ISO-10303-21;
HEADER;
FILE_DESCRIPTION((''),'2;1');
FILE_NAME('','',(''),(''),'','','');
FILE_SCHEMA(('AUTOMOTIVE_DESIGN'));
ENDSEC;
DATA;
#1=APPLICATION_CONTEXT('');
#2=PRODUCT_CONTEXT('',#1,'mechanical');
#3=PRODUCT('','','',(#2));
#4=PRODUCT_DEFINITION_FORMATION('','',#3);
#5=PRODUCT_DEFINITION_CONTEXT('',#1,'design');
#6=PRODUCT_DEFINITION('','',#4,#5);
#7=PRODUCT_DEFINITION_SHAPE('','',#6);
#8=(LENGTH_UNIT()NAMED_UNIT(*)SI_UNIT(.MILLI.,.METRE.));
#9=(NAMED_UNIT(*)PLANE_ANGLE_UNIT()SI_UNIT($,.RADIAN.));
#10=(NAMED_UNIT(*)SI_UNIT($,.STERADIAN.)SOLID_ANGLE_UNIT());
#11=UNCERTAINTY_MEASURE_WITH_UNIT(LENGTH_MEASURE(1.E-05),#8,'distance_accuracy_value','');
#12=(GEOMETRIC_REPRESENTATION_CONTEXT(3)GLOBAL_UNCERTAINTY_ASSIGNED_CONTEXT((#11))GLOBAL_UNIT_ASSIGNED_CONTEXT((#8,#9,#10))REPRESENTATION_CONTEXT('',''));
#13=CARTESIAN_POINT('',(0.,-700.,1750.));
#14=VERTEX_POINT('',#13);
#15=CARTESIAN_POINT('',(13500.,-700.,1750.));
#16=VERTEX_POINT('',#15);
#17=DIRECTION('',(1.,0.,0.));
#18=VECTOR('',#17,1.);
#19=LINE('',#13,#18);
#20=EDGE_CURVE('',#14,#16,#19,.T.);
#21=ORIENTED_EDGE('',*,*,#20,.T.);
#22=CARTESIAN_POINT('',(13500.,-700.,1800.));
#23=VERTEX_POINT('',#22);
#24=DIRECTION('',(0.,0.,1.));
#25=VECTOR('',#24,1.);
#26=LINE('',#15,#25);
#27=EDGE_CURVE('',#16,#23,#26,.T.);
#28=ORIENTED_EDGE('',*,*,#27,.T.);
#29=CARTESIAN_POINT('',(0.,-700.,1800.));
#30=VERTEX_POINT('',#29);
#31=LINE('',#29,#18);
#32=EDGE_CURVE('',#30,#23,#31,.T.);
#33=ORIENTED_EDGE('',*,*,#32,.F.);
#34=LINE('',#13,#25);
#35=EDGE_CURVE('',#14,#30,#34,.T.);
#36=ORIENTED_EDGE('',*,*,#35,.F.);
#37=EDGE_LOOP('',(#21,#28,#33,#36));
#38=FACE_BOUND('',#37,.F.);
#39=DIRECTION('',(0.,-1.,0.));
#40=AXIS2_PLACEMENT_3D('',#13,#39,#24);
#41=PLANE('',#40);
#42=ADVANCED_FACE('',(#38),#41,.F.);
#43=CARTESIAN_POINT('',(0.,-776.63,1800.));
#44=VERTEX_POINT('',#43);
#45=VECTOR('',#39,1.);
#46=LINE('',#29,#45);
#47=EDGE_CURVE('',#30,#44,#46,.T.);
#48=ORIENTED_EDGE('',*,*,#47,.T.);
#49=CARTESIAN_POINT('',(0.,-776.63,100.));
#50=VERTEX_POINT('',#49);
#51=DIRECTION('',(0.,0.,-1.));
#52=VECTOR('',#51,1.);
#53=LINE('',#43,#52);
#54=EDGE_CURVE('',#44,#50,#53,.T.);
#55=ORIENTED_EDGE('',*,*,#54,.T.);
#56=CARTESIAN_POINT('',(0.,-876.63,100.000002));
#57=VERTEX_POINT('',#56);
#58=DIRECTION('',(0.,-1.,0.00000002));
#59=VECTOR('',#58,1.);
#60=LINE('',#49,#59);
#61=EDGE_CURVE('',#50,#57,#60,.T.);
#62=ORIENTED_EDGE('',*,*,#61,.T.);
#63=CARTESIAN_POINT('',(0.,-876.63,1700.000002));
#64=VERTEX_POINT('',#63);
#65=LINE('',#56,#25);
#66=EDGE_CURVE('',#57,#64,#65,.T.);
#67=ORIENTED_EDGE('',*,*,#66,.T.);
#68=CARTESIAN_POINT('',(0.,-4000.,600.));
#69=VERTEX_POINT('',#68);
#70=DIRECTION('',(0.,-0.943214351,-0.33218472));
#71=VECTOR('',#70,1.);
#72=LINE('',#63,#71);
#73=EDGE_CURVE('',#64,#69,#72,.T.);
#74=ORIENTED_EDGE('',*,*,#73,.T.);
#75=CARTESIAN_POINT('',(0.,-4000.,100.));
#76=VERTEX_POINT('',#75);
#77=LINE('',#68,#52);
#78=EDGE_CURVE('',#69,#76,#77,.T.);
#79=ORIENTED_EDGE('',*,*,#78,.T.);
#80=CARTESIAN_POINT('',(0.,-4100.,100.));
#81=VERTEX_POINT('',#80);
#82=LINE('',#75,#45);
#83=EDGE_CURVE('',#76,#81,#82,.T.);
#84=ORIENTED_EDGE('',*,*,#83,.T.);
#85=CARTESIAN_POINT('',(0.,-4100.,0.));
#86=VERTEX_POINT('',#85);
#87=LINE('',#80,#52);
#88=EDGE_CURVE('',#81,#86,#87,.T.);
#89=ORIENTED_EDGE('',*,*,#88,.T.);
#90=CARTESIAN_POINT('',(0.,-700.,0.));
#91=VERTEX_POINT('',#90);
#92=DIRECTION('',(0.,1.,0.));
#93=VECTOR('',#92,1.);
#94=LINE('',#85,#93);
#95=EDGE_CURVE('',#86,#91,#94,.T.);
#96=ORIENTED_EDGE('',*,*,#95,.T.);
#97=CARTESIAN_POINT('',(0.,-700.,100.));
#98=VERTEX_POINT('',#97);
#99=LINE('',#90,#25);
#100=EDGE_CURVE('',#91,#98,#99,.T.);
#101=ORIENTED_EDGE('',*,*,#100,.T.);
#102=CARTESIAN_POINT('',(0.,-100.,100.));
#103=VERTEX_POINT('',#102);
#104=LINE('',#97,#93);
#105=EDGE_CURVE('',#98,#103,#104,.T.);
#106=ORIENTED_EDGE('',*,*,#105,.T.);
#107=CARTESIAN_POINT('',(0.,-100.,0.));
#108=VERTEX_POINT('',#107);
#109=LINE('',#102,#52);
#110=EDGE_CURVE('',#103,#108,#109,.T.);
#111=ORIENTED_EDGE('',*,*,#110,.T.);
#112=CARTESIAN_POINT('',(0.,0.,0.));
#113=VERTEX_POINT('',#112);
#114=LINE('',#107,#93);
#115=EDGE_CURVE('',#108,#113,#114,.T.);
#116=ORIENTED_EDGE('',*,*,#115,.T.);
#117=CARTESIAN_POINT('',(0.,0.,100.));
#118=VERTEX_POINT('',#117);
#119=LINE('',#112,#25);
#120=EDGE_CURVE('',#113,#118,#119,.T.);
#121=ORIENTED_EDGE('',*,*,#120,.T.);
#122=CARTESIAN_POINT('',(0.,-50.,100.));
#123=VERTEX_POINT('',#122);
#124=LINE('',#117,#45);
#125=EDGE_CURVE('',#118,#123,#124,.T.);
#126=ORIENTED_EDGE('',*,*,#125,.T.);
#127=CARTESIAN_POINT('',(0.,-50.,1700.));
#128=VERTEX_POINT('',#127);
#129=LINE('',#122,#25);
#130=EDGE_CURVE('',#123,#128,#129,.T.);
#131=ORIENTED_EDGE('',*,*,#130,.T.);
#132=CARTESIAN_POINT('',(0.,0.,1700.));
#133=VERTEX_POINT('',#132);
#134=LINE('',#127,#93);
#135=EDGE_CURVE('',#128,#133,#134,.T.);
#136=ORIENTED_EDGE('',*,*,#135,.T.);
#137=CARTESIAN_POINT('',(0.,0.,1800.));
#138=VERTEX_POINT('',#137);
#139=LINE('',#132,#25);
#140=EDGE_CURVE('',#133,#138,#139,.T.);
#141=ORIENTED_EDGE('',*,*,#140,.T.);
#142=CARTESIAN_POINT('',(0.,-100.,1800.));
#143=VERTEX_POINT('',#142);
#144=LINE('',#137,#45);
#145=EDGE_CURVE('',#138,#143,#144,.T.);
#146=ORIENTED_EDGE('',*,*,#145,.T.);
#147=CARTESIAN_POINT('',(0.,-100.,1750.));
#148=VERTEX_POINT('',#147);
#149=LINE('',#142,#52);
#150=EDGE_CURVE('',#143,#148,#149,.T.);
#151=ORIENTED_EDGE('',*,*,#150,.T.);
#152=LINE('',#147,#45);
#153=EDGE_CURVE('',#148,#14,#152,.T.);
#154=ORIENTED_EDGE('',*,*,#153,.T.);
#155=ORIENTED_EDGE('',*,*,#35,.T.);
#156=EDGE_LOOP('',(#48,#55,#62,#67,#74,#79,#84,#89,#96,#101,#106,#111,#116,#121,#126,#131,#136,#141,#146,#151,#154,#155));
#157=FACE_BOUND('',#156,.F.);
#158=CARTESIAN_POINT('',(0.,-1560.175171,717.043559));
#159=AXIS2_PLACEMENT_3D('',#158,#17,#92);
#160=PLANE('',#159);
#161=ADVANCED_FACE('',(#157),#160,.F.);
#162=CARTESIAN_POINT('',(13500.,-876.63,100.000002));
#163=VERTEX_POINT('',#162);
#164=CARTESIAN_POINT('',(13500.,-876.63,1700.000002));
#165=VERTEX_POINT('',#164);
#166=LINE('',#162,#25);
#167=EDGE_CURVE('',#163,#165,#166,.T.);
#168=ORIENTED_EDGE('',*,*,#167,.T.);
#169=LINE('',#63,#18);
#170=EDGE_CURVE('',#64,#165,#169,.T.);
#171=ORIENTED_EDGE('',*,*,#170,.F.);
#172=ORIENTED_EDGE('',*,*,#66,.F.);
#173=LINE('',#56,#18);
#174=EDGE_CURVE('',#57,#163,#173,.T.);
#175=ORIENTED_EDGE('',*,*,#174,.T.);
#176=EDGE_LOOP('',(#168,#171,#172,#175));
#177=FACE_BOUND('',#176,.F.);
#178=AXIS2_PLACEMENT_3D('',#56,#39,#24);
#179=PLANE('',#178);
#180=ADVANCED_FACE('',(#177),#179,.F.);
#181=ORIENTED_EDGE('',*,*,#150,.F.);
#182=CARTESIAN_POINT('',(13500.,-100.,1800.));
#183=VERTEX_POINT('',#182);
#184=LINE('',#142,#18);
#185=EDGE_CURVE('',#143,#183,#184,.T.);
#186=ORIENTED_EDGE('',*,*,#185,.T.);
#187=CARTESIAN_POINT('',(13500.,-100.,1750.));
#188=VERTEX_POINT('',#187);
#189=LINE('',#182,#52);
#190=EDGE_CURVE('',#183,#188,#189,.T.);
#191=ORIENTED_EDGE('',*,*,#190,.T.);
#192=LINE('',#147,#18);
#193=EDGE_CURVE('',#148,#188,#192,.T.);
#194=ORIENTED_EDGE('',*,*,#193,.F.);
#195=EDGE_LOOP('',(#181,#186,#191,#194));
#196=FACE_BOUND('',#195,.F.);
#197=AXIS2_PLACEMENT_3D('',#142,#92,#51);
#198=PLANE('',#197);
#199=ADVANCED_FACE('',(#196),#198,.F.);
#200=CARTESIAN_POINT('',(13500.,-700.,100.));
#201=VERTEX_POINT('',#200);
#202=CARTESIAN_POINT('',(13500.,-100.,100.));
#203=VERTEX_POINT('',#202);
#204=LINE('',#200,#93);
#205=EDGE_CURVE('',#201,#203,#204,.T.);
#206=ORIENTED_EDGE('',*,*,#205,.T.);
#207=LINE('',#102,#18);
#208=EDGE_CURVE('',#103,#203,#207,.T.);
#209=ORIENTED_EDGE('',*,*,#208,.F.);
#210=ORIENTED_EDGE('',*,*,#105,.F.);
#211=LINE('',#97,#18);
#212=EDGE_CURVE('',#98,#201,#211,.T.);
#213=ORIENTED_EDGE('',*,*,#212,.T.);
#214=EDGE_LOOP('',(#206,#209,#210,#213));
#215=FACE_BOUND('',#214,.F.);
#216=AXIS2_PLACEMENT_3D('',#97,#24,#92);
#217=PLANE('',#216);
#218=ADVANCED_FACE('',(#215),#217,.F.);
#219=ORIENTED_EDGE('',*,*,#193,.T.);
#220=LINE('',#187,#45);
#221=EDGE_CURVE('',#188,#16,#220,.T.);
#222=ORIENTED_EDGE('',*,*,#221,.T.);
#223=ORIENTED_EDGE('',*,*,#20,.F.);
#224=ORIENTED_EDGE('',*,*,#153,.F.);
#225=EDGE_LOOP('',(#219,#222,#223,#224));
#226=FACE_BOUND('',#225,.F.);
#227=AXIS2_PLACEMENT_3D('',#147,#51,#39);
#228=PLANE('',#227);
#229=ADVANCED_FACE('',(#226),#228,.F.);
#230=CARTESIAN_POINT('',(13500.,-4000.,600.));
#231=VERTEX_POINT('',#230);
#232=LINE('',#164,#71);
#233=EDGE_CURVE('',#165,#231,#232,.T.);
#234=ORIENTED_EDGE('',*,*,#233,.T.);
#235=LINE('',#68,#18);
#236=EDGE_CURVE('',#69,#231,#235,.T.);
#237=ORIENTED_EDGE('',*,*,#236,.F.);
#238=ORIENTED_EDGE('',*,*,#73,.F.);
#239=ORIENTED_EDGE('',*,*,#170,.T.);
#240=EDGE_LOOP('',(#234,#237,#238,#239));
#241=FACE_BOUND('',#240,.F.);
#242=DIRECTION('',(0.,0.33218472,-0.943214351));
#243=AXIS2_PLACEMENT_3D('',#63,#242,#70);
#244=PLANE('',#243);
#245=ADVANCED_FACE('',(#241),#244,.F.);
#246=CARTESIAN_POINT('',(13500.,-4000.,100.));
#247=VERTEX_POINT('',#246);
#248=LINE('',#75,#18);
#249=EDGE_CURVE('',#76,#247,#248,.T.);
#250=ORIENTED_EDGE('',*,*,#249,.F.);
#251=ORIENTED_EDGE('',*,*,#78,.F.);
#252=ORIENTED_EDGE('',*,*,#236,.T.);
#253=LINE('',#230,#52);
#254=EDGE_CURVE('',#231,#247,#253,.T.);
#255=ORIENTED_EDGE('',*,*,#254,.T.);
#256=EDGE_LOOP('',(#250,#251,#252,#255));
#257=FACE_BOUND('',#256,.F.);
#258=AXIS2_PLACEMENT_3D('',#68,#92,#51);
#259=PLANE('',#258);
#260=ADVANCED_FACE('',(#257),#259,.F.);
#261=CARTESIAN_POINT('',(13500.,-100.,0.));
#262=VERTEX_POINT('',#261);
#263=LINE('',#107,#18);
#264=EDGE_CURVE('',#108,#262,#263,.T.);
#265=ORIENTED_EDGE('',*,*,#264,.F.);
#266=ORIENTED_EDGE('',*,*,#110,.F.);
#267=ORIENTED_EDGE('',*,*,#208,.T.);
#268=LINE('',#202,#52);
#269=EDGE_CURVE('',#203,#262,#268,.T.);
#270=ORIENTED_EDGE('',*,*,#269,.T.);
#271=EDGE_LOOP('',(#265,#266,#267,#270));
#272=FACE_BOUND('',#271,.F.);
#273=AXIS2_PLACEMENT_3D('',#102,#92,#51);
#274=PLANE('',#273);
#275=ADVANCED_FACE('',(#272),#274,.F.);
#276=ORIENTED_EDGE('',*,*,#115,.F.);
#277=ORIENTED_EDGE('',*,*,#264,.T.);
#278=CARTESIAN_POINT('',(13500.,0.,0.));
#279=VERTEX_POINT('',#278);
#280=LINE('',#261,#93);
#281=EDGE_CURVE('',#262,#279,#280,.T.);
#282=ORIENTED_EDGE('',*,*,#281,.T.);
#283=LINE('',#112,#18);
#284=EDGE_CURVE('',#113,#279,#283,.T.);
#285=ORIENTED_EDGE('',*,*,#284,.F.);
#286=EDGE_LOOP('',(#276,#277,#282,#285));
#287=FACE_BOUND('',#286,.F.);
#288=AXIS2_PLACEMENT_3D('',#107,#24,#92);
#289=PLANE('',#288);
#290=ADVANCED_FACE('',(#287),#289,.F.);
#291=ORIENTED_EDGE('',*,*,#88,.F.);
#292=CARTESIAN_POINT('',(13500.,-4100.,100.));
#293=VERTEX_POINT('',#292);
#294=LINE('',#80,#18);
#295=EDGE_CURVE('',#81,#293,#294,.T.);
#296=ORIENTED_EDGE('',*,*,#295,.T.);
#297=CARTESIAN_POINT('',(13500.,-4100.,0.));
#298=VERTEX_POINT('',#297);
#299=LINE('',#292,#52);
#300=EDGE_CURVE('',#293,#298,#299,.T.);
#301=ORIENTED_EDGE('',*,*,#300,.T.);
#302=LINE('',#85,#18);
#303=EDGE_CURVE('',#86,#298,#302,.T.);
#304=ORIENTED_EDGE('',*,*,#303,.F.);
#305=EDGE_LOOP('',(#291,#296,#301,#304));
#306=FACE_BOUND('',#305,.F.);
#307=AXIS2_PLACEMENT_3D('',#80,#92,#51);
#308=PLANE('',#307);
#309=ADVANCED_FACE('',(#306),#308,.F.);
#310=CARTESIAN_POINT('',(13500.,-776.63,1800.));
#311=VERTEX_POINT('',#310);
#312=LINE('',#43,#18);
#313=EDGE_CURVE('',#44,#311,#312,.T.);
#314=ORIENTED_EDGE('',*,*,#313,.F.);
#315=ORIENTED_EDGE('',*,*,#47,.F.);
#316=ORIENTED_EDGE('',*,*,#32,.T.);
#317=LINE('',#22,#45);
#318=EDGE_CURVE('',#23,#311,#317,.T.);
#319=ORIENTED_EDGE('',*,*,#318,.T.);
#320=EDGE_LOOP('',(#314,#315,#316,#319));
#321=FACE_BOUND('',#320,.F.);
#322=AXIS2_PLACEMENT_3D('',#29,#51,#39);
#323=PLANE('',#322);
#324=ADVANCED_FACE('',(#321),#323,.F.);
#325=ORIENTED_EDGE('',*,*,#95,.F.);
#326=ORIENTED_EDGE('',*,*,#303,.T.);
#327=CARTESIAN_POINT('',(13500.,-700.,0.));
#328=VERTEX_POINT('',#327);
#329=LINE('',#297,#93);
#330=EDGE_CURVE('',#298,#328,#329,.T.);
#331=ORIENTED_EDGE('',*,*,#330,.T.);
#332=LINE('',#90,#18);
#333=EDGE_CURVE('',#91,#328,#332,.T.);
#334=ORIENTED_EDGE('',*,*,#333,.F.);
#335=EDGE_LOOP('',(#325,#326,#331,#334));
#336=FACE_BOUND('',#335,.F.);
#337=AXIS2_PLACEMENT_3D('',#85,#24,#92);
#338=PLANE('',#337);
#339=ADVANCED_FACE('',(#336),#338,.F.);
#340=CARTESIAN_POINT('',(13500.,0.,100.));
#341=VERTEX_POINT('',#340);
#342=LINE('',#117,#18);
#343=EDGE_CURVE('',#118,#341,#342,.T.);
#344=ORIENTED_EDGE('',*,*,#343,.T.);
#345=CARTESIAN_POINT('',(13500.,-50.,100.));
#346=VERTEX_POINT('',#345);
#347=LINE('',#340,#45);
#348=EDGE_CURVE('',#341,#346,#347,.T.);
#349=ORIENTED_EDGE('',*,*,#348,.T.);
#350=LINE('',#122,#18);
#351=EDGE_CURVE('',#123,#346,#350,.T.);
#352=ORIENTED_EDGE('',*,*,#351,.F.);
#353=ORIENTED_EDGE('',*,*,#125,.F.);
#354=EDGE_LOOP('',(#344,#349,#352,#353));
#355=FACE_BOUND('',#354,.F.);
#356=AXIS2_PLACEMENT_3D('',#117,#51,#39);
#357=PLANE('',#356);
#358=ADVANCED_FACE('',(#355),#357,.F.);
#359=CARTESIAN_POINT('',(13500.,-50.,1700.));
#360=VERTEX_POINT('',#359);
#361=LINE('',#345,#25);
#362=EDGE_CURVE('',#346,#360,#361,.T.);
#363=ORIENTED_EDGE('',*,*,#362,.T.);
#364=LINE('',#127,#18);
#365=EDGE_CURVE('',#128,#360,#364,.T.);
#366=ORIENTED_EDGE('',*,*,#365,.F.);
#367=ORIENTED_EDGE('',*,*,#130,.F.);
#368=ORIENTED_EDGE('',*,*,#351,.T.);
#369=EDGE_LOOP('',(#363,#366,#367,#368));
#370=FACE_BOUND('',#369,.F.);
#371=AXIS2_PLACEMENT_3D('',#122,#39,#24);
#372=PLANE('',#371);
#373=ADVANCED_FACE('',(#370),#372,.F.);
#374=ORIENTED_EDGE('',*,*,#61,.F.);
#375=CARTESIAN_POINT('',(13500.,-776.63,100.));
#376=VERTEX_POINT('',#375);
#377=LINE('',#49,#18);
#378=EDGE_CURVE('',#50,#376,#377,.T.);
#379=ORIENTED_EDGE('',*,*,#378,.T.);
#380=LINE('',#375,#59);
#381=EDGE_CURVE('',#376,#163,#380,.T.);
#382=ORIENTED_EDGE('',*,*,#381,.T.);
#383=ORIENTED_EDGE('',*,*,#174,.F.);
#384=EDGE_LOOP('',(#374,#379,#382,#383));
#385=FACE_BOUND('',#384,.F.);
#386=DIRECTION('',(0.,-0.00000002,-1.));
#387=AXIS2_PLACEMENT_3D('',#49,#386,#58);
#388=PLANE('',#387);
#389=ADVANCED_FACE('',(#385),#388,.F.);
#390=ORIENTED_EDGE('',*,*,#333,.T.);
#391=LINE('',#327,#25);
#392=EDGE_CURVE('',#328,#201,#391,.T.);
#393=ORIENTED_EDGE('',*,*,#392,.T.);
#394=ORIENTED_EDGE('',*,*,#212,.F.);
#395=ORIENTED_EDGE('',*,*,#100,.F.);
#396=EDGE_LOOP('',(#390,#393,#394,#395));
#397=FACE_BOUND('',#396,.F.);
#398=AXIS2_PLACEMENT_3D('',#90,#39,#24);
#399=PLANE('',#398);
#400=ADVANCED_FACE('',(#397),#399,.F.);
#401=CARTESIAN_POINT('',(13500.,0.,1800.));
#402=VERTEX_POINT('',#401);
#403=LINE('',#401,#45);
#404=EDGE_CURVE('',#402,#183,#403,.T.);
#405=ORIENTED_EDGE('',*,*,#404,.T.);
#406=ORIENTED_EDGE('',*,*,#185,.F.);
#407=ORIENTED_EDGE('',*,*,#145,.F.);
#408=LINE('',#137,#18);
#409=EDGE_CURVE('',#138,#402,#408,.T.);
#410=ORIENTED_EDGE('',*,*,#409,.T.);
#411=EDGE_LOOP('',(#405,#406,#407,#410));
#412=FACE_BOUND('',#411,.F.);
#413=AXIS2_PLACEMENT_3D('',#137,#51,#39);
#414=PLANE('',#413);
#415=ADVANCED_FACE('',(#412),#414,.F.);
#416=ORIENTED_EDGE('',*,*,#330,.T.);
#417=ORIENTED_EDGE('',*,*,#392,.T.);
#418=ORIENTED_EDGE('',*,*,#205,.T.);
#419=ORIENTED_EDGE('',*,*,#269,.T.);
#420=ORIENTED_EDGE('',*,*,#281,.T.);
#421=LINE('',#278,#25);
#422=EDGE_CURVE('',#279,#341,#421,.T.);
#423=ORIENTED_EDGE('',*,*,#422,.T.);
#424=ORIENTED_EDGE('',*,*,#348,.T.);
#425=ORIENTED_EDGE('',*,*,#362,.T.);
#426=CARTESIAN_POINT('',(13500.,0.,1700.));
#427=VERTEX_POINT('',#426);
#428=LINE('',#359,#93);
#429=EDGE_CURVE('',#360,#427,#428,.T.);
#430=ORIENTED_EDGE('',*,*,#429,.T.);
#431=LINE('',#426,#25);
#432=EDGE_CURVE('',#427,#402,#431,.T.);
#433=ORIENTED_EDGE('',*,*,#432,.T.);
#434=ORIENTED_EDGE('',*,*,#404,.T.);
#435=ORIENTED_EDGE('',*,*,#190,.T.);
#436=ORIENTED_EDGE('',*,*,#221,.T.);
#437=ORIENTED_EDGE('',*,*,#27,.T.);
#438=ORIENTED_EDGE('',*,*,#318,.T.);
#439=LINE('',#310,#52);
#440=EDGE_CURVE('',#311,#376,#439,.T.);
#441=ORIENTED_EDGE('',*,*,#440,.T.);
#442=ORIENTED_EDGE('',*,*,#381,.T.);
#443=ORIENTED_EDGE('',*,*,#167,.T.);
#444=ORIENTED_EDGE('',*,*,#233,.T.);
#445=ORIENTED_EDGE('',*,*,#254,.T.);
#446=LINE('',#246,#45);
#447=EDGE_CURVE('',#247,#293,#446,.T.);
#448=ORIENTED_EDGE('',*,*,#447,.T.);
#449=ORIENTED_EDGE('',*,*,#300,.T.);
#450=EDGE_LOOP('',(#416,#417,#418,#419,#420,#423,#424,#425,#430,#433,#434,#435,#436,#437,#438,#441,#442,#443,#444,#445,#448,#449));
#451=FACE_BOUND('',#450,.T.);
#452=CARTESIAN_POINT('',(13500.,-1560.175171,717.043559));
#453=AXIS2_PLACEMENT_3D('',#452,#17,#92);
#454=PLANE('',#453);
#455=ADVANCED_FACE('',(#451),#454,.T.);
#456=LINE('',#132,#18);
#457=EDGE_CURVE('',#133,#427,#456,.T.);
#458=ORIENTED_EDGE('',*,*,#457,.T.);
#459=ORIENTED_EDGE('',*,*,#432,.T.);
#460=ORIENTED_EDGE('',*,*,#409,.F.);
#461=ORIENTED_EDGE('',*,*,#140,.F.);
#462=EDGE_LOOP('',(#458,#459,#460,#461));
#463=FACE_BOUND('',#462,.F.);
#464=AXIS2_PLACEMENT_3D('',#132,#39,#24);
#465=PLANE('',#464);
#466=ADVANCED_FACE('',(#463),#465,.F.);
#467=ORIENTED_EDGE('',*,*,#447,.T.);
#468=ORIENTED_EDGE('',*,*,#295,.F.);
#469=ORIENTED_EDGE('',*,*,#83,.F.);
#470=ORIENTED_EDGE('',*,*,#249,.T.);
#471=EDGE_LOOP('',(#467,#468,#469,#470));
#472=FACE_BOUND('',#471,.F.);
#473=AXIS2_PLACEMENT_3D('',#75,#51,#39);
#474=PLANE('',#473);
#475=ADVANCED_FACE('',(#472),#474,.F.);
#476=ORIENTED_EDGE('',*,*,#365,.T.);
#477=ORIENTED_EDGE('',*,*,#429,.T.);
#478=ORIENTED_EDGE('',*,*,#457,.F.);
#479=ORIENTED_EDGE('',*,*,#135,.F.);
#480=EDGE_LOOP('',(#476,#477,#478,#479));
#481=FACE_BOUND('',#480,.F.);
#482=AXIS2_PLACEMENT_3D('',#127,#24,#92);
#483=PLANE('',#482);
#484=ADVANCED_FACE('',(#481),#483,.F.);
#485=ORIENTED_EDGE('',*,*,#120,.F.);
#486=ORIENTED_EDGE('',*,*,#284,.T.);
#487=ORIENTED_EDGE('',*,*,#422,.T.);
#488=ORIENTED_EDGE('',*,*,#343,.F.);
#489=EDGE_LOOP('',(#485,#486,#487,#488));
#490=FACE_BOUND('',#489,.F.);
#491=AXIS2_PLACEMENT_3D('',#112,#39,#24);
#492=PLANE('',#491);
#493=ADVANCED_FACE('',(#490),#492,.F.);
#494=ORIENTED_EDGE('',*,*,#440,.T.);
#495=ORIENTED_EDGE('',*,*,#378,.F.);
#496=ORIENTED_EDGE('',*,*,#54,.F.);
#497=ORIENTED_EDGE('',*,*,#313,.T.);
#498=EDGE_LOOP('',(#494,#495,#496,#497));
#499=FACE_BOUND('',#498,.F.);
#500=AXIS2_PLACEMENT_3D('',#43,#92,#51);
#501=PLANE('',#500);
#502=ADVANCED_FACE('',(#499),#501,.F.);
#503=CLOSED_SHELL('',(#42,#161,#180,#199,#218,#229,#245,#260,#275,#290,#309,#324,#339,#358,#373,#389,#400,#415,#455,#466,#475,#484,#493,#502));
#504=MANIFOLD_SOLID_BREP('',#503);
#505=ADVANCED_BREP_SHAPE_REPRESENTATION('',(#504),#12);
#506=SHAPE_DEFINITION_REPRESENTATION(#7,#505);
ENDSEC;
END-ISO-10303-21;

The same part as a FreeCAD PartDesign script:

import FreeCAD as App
import Part
import Sketcher

V = App.Vector


def add_polygon(sketch, points):
    """Adds a closed chain of lines whose ends are joined by coincident constraints."""
    first, n = sketch.GeometryCount, len(points)
    for a, b in zip(points, points[1:] + points[:1]):
        sketch.addGeometry(Part.LineSegment(App.Vector(*a, 0), App.Vector(*b, 0)), False)
    for i in range(n):
        sketch.addConstraint(Sketcher.Constraint("Coincident", first + i, 2, first + (i + 1) % n, 1))

doc = App.newDocument("Part")
body = doc.addObject("PartDesign::Body", "Body")

# Sketch on YZ plane
sketch1 = body.newObject("Sketcher::SketchObject", "Sketch")
sketch1.AttachmentSupport = (doc.getObject("YZ_Plane"), [""])
sketch1.MapMode = "FlatFace"
add_polygon(sketch1, [(-100, 0), (0, 0), (0, 100), (-50, 100), (-50, 1700), (0, 1700), (0, 1800), (-100, 1800), (-100, 1750), (-700, 1750), (-700, 1800), (-776.63, 1800), (-776.63, 100), (-876.63, 100.000002), (-876.63, 1700.000002), (-4000, 600), (-4000, 100), (-4100, 100), (-4100, 0), (-700, 0), (-700, 100), (-100, 100)])  # lines 0-21
sketch1.addConstraint([
    Sketcher.Constraint("Horizontal", 0),
    Sketcher.Constraint("Vertical", 1),
    Sketcher.Constraint("Horizontal", 2),
    Sketcher.Constraint("Vertical", 3),
    Sketcher.Constraint("Horizontal", 4),
    Sketcher.Constraint("Vertical", 5),
    Sketcher.Constraint("Horizontal", 6),
    Sketcher.Constraint("Vertical", 7),
    Sketcher.Constraint("Horizontal", 8),
    Sketcher.Constraint("Vertical", 9),
    Sketcher.Constraint("Horizontal", 10),
    Sketcher.Constraint("Vertical", 11),
    Sketcher.Constraint("Horizontal", 12),
    Sketcher.Constraint("Vertical", 13),
    Sketcher.Constraint("Vertical", 15),
    Sketcher.Constraint("Horizontal", 16),
    Sketcher.Constraint("Vertical", 17),
    Sketcher.Constraint("Horizontal", 18),
    Sketcher.Constraint("Vertical", 19),
    Sketcher.Constraint("Horizontal", 20),
    Sketcher.Constraint("Vertical", 21),
    Sketcher.Constraint("Coincident", 0, 2, -1, 1),
    Sketcher.Constraint("PointOnObject", 4, 2, -2),
    Sketcher.Constraint("PointOnObject", 17, 2, -1),
    Sketcher.Constraint("Horizontal", 6, 2, 9, 2),
    Sketcher.Constraint("Horizontal", 2, 2, 11, 2),
    Sketcher.Constraint("Horizontal", 4, 2, 13, 2),
    Sketcher.Constraint("Horizontal", 12, 2, 15, 2),
    Sketcher.Constraint("Horizontal", 16, 2, 19, 2),
    Sketcher.Constraint("Vertical", 9, 2, 18, 2),
    Sketcher.Constraint("Vertical", 7, 2, 20, 2),
    Sketcher.Constraint("Equal", 6, 12),
    Sketcher.Constraint("Equal", 12, 16),
    Sketcher.Constraint("Equal", 16, 1),
    Sketcher.Constraint("Equal", 1, 5),
    Sketcher.Constraint("Equal", 4, 7),
    Sketcher.Constraint("DistanceX", 0, 1, 0, 2, 100.0),
    Sketcher.Constraint("DistanceX", 2, 2, 2, 1, 50.0),
    Sketcher.Constraint("DistanceX", 8, 2, 8, 1, 600.0),
    Sketcher.Constraint("DistanceX", 18, 1, 18, 2, 3400.0),
    Sketcher.Constraint("DistanceY", 3, 1, 3, 2, 1600.0),
    Sketcher.Constraint("DistanceY", 15, 2, 15, 1, 500.0),
    Sketcher.Constraint("DistanceX", 10, 2, 10, 1, 76.63),
])
pad1 = body.newObject("PartDesign::Pad", "Pad")
pad1.Profile = sketch1
pad1.Length = 13500

doc.recompute()
